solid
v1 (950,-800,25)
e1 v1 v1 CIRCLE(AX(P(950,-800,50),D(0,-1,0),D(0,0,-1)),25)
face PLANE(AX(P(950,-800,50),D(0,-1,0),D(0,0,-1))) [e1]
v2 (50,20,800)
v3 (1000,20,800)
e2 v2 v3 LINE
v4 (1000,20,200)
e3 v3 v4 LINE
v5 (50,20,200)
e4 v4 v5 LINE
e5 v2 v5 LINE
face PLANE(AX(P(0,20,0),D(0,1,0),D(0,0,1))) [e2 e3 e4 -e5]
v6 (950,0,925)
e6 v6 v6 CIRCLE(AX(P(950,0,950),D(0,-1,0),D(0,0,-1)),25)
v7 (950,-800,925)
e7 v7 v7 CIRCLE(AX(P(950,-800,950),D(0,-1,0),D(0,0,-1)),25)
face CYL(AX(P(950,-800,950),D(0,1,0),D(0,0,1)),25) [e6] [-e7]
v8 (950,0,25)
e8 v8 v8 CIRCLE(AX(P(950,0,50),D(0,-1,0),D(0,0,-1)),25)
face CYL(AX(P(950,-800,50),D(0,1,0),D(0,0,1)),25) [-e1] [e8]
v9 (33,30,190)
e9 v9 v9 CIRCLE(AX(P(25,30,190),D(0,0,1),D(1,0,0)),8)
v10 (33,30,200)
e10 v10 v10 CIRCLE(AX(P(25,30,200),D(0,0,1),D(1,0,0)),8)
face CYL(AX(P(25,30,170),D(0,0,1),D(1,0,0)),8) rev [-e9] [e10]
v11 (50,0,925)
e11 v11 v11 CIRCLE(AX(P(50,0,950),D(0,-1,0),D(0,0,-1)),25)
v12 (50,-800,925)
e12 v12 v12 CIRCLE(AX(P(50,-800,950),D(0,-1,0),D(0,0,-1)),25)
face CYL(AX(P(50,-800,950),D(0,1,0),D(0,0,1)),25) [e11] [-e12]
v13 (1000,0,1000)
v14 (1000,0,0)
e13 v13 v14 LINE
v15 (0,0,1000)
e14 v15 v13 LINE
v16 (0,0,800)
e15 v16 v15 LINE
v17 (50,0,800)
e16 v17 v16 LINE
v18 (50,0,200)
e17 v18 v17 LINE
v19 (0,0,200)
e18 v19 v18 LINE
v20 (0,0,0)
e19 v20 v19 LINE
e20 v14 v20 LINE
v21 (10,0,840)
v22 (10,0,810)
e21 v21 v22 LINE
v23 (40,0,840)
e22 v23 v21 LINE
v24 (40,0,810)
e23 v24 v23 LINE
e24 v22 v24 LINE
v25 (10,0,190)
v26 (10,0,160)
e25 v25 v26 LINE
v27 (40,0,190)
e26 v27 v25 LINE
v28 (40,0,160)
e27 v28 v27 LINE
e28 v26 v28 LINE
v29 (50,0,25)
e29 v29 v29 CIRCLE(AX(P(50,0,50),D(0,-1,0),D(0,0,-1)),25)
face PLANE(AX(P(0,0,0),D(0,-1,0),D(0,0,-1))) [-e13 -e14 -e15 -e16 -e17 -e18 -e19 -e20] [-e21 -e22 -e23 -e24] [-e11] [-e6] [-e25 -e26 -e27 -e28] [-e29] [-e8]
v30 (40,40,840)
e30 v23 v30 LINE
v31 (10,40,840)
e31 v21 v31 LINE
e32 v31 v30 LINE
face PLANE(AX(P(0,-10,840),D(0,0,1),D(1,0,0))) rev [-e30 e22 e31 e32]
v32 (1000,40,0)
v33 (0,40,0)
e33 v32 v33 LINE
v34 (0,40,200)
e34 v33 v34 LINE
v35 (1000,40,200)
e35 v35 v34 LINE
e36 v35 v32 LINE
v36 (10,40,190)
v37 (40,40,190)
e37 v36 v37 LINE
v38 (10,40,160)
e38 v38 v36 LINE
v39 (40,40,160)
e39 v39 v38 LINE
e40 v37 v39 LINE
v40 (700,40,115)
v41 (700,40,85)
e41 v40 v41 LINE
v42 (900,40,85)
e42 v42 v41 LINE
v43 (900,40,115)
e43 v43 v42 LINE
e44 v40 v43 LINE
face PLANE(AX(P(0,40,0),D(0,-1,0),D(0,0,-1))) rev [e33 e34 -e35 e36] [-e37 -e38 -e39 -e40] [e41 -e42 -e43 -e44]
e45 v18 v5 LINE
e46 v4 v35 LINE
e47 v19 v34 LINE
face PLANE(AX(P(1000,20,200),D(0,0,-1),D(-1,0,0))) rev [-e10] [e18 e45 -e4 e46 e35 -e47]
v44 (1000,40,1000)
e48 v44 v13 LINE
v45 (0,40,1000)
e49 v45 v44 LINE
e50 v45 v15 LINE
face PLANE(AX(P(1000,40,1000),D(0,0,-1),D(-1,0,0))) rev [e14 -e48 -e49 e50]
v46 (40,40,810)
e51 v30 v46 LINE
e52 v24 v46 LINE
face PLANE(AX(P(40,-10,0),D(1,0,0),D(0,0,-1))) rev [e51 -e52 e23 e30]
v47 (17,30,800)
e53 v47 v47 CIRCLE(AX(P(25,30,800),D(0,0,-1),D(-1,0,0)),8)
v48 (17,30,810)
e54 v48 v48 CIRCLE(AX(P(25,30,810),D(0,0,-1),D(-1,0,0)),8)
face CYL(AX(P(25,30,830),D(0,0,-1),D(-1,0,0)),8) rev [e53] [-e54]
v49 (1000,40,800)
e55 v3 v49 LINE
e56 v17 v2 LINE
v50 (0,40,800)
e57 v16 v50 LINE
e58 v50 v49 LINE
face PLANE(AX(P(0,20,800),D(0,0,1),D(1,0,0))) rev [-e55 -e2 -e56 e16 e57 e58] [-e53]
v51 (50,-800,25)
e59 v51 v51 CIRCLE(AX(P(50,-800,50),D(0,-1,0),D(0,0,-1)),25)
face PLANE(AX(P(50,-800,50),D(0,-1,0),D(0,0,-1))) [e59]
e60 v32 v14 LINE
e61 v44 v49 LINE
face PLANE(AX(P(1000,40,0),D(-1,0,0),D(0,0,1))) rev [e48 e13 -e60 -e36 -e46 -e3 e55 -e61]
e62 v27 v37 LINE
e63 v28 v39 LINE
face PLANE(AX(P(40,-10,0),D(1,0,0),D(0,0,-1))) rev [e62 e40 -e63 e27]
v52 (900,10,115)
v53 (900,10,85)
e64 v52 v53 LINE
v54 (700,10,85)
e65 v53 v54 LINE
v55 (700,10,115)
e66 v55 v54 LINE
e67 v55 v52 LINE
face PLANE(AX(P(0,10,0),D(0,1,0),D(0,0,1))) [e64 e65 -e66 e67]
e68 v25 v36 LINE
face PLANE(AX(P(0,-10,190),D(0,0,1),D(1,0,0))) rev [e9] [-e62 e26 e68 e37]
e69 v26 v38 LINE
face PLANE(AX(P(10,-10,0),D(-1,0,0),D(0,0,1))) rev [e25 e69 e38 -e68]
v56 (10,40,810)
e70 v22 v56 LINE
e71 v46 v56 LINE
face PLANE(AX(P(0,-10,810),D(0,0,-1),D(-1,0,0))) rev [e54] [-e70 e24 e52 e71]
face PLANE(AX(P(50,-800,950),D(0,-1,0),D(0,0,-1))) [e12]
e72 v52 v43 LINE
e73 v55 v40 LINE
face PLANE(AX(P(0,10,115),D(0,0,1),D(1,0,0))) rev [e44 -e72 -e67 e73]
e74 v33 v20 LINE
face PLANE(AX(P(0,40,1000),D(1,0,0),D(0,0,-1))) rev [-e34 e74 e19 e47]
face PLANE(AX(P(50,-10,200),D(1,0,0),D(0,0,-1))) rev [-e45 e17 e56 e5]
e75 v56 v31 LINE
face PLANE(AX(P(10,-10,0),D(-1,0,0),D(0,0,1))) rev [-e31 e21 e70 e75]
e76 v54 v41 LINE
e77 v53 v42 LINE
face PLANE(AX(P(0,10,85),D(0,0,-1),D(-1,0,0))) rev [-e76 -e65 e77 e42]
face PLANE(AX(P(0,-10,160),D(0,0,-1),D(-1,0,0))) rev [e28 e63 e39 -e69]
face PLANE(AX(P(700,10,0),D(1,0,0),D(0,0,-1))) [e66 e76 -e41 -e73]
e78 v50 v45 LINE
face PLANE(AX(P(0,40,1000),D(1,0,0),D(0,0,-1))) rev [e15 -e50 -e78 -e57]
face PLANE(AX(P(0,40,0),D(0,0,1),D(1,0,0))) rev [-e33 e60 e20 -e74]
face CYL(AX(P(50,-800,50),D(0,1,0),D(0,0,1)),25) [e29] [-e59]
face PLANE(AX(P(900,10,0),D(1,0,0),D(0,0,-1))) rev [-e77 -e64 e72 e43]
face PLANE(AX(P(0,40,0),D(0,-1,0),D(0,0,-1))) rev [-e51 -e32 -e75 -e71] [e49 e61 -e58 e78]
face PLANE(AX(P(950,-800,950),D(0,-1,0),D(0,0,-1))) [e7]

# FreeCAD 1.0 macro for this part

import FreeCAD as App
import Part
import Sketcher

doc = App.newDocument("Part")
body = doc.addObject("PartDesign::Body", "Body")

# Sketch on XZ plane
sketch1 = body.newObject("Sketcher::SketchObject", "Sketch")
sketch1.AttachmentSupport = (doc.getObject("XZ_Plane"), [""])
sketch1.MapMode = "FlatFace"
sketch1.addGeometry([
    Part.LineSegment(App.Vector(0, 0, 0), App.Vector(0, 1000, 0)),
    Part.LineSegment(App.Vector(0, 1000, 0), App.Vector(1000, 1000, 0)),
    Part.LineSegment(App.Vector(1000, 1000, 0), App.Vector(1000, 0, 0)),
    Part.LineSegment(App.Vector(1000, 0, 0), App.Vector(0, 0, 0)),
], False)
sketch1.addConstraint([
    Sketcher.Constraint("Coincident", 0, 2, 1, 1),
    Sketcher.Constraint("Coincident", 1, 2, 2, 1),
    Sketcher.Constraint("Coincident", 2, 2, 3, 1),
    Sketcher.Constraint("Coincident", 3, 2, 0, 1),
    Sketcher.Constraint("Vertical", 0),
    Sketcher.Constraint("Horizontal", 1),
    Sketcher.Constraint("Vertical", 2),
    Sketcher.Constraint("Horizontal", 3),
    Sketcher.Constraint("Coincident", 3, 2, -1, 1),
    Sketcher.Constraint("Equal", 3, 0),
    Sketcher.Constraint("DistanceX", 1, 1, 1, 2, 1000.0),
])
pad1 = body.newObject("PartDesign::Pad", "Pad")
pad1.Profile = sketch1
pad1.Length = 40
pad1.Reversed = True

# Sketch on XZ plane
sketch2 = body.newObject("Sketcher::SketchObject", "Sketch001")
sketch2.AttachmentSupport = (doc.getObject("XZ_Plane"), [""])
sketch2.MapMode = "FlatFace"
sketch2.AttachmentOffset = App.Placement(App.Vector(0, 0, -40), App.Rotation())
sketch2.addGeometry([
    Part.LineSegment(App.Vector(0, 200, 0), App.Vector(0, 800, 0)),
    Part.LineSegment(App.Vector(0, 800, 0), App.Vector(1000, 800, 0)),
    Part.LineSegment(App.Vector(1000, 800, 0), App.Vector(1000, 200, 0)),
    Part.LineSegment(App.Vector(1000, 200, 0), App.Vector(0, 200, 0)),
], False)
sketch2.addConstraint([
    Sketcher.Constraint("Coincident", 0, 2, 1, 1),
    Sketcher.Constraint("Coincident", 1, 2, 2, 1),
    Sketcher.Constraint("Coincident", 2, 2, 3, 1),
    Sketcher.Constraint("Coincident", 3, 2, 0, 1),
    Sketcher.Constraint("Vertical", 0),
    Sketcher.Constraint("Horizontal", 1),
    Sketcher.Constraint("Vertical", 2),
    Sketcher.Constraint("Horizontal", 3),
    Sketcher.Constraint("PointOnObject", 0, 2, -2),
    Sketcher.Constraint("DistanceX", 1, 1, 1, 2, 1000.0),
    Sketcher.Constraint("DistanceY", 0, 1, 0, 2, 600.0),
    Sketcher.Constraint("DistanceY", -1, 1, 0, 2, 800.0),
])
pocket1 = body.newObject("PartDesign::Pocket", "Pocket")
pocket1.Profile = sketch2
pocket1.Length = 20
pocket1.Reversed = True

# Sketch on XZ plane
sketch3 = body.newObject("Sketcher::SketchObject", "Sketch002")
sketch3.AttachmentSupport = (doc.getObject("XZ_Plane"), [""])
sketch3.MapMode = "FlatFace"
sketch3.addGeometry([
    Part.Circle(App.Vector(50, 950, 0), App.Vector(0, 0, 1), 25),
    Part.Circle(App.Vector(950, 950, 0), App.Vector(0, 0, 1), 25),
    Part.Circle(App.Vector(950, 50, 0), App.Vector(0, 0, 1), 25),
    Part.Circle(App.Vector(50, 50, 0), App.Vector(0, 0, 1), 25),
], False)
sketch3.addConstraint([
    Sketcher.Constraint("Equal", 0, 1),
    Sketcher.Constraint("Equal", 1, 2),
    Sketcher.Constraint("Equal", 2, 3),
    Sketcher.Constraint("Horizontal", 0, 3, 1, 3),
    Sketcher.Constraint("Horizontal", 2, 3, 3, 3),
    Sketcher.Constraint("Vertical", 1, 3, 2, 3),
    Sketcher.Constraint("Vertical", 0, 3, 3, 3),
    Sketcher.Constraint("Diameter", 0, 50.0),
    Sketcher.Constraint("DistanceX", -1, 1, 0, 3, 50.0),
    Sketcher.Constraint("DistanceY", -1, 1, 0, 3, 950.0),
    Sketcher.Constraint("DistanceX", -1, 1, 1, 3, 950.0),
    Sketcher.Constraint("DistanceY", -1, 1, 2, 3, 50.0),
])
pad2 = body.newObject("PartDesign::Pad", "Pad001")
pad2.Profile = sketch3
pad2.Length = 800

# Sketch on XZ plane
sketch4 = body.newObject("Sketcher::SketchObject", "Sketch003")
sketch4.AttachmentSupport = (doc.getObject("XZ_Plane"), [""])
sketch4.MapMode = "FlatFace"
sketch4.AttachmentOffset = App.Placement(App.Vector(0, 0, -40), App.Rotation())
sketch4.addGeometry([
    Part.LineSegment(App.Vector(10, 160, 0), App.Vector(10, 190, 0)),  # 0
    Part.LineSegment(App.Vector(10, 190, 0), App.Vector(40, 190, 0)),  # 1
    Part.LineSegment(App.Vector(40, 190, 0), App.Vector(40, 160, 0)),  # 2
    Part.LineSegment(App.Vector(40, 160, 0), App.Vector(10, 160, 0)),  # 3
    Part.LineSegment(App.Vector(10, 810, 0), App.Vector(10, 840, 0)),  # 4
    Part.LineSegment(App.Vector(10, 840, 0), App.Vector(40, 840, 0)),  # 5
    Part.LineSegment(App.Vector(40, 840, 0), App.Vector(40, 810, 0)),  # 6
    Part.LineSegment(App.Vector(40, 810, 0), App.Vector(10, 810, 0)),  # 7
], False)
sketch4.addConstraint([
    Sketcher.Constraint("Coincident", 0, 2, 1, 1),
    Sketcher.Constraint("Coincident", 1, 2, 2, 1),
    Sketcher.Constraint("Coincident", 2, 2, 3, 1),
    Sketcher.Constraint("Coincident", 3, 2, 0, 1),
    Sketcher.Constraint("Coincident", 4, 2, 5, 1),
    Sketcher.Constraint("Coincident", 5, 2, 6, 1),
    Sketcher.Constraint("Coincident", 6, 2, 7, 1),
    Sketcher.Constraint("Coincident", 7, 2, 4, 1),
    Sketcher.Constraint("Vertical", 0),
    Sketcher.Constraint("Horizontal", 1),
    Sketcher.Constraint("Vertical", 2),
    Sketcher.Constraint("Horizontal", 3),
    Sketcher.Constraint("Vertical", 4),
    Sketcher.Constraint("Horizontal", 5),
    Sketcher.Constraint("Vertical", 6),
    Sketcher.Constraint("Horizontal", 7),
    Sketcher.Constraint("Vertical", 3, 2, 4, 2),
    Sketcher.Constraint("Vertical", 2, 2, 5, 2),
    Sketcher.Constraint("Equal", 7, 0),
    Sketcher.Constraint("Equal", 2, 4),
    Sketcher.Constraint("DistanceX", 1, 1, 1, 2, 30.0),
    Sketcher.Constraint("DistanceX", -1, 1, 0, 2, 10.0),
    Sketcher.Constraint("DistanceY", -1, 1, 0, 2, 190.0),
    Sketcher.Constraint("DistanceY", -1, 1, 4, 2, 840.0),
])
pocket2 = body.newObject("PartDesign::Pocket", "Pocket001")
pocket2.Profile = sketch4
pocket2.Length = 50
pocket2.Reversed = True

# Sketch on XY plane
sketch5 = body.newObject("Sketcher::SketchObject", "Sketch004")
sketch5.AttachmentSupport = (doc.getObject("XY_Plane"), [""])
sketch5.MapMode = "FlatFace"
sketch5.AttachmentOffset = App.Placement(App.Vector(0, 0, 200), App.Rotation())
sketch5.addGeometry(Part.Circle(App.Vector(25, 30, 0), App.Vector(0, 0, 1), 8), False)
sketch5.addConstraint([
    Sketcher.Constraint("Diameter", 0, 16.0),
    Sketcher.Constraint("DistanceX", -1, 1, 0, 3, 25.0),
    Sketcher.Constraint("DistanceY", -1, 1, 0, 3, 30.0),
])
pocket3 = body.newObject("PartDesign::Pocket", "Pocket002")
pocket3.Profile = sketch5
pocket3.Length = 30

# Sketch on XY plane
sketch6 = body.newObject("Sketcher::SketchObject", "Sketch005")
sketch6.AttachmentSupport = (doc.getObject("XY_Plane"), [""])
sketch6.MapMode = "FlatFace"
sketch6.AttachmentOffset = App.Placement(App.Vector(0, 0, 830), App.Rotation())
sketch6.addGeometry(Part.Circle(App.Vector(25, 30, 0), App.Vector(0, 0, 1), 8), False)
sketch6.addConstraint([
    Sketcher.Constraint("Diameter", 0, 16.0),
    Sketcher.Constraint("DistanceX", -1, 1, 0, 3, 25.0),
    Sketcher.Constraint("DistanceY", -1, 1, 0, 3, 30.0),
])
pocket4 = body.newObject("PartDesign::Pocket", "Pocket003")
pocket4.Profile = sketch6
pocket4.Length = 30

# Sketch on XZ plane
sketch7 = body.newObject("Sketcher::SketchObject", "Sketch006")
sketch7.AttachmentSupport = (doc.getObject("XZ_Plane"), [""])
sketch7.MapMode = "FlatFace"
sketch7.AttachmentOffset = App.Placement(App.Vector(0, 0, -20), App.Rotation())
sketch7.addGeometry([
    Part.LineSegment(App.Vector(0, 200, 0), App.Vector(0, 800, 0)),
    Part.LineSegment(App.Vector(0, 800, 0), App.Vector(50, 800, 0)),
    Part.LineSegment(App.Vector(50, 800, 0), App.Vector(50, 200, 0)),
    Part.LineSegment(App.Vector(50, 200, 0), App.Vector(0, 200, 0)),
], False)
sketch7.addConstraint([
    Sketcher.Constraint("Coincident", 0, 2, 1, 1),
    Sketcher.Constraint("Coincident", 1, 2, 2, 1),
    Sketcher.Constraint("Coincident", 2, 2, 3, 1),
    Sketcher.Constraint("Coincident", 3, 2, 0, 1),
    Sketcher.Constraint("Vertical", 0),
    Sketcher.Constraint("Horizontal", 1),
    Sketcher.Constraint("Vertical", 2),
    Sketcher.Constraint("Horizontal", 3),
    Sketcher.Constraint("PointOnObject", 0, 2, -2),
    Sketcher.Constraint("DistanceX", 1, 1, 1, 2, 50.0),
    Sketcher.Constraint("DistanceY", 0, 1, 0, 2, 600.0),
    Sketcher.Constraint("DistanceY", -1, 1, 0, 2, 800.0),
])
pocket5 = body.newObject("PartDesign::Pocket", "Pocket004")
pocket5.Profile = sketch7
pocket5.Length = 30
pocket5.Reversed = True

# Sketch on XZ plane
sketch8 = body.newObject("Sketcher::SketchObject", "Sketch007")
sketch8.AttachmentSupport = (doc.getObject("XZ_Plane"), [""])
sketch8.MapMode = "FlatFace"
sketch8.AttachmentOffset = App.Placement(App.Vector(0, 0, -40), App.Rotation())
sketch8.addGeometry([
    Part.LineSegment(App.Vector(700, 115, 0), App.Vector(900, 115, 0)),
    Part.LineSegment(App.Vector(900, 115, 0), App.Vector(900, 85, 0)),
    Part.LineSegment(App.Vector(900, 85, 0), App.Vector(700, 85, 0)),
    Part.LineSegment(App.Vector(700, 85, 0), App.Vector(700, 115, 0)),
], False)
sketch8.addConstraint([
    Sketcher.Constraint("Coincident", 0, 2, 1, 1),
    Sketcher.Constraint("Coincident", 1, 2, 2, 1),
    Sketcher.Constraint("Coincident", 2, 2, 3, 1),
    Sketcher.Constraint("Coincident", 3, 2, 0, 1),
    Sketcher.Constraint("Horizontal", 0),
    Sketcher.Constraint("Vertical", 1),
    Sketcher.Constraint("Horizontal", 2),
    Sketcher.Constraint("Vertical", 3),
    Sketcher.Constraint("DistanceX", 0, 1, 0, 2, 200.0),
    Sketcher.Constraint("DistanceY", 1, 2, 1, 1, 30.0),
    Sketcher.Constraint("DistanceX", -1, 1, 0, 2, 900.0),
    Sketcher.Constraint("DistanceY", -1, 1, 0, 2, 115.0),
])
pocket6 = body.newObject("PartDesign::Pocket", "Pocket005")
pocket6.Profile = sketch8
pocket6.Length = 30
pocket6.Reversed = True

doc.recompute()
